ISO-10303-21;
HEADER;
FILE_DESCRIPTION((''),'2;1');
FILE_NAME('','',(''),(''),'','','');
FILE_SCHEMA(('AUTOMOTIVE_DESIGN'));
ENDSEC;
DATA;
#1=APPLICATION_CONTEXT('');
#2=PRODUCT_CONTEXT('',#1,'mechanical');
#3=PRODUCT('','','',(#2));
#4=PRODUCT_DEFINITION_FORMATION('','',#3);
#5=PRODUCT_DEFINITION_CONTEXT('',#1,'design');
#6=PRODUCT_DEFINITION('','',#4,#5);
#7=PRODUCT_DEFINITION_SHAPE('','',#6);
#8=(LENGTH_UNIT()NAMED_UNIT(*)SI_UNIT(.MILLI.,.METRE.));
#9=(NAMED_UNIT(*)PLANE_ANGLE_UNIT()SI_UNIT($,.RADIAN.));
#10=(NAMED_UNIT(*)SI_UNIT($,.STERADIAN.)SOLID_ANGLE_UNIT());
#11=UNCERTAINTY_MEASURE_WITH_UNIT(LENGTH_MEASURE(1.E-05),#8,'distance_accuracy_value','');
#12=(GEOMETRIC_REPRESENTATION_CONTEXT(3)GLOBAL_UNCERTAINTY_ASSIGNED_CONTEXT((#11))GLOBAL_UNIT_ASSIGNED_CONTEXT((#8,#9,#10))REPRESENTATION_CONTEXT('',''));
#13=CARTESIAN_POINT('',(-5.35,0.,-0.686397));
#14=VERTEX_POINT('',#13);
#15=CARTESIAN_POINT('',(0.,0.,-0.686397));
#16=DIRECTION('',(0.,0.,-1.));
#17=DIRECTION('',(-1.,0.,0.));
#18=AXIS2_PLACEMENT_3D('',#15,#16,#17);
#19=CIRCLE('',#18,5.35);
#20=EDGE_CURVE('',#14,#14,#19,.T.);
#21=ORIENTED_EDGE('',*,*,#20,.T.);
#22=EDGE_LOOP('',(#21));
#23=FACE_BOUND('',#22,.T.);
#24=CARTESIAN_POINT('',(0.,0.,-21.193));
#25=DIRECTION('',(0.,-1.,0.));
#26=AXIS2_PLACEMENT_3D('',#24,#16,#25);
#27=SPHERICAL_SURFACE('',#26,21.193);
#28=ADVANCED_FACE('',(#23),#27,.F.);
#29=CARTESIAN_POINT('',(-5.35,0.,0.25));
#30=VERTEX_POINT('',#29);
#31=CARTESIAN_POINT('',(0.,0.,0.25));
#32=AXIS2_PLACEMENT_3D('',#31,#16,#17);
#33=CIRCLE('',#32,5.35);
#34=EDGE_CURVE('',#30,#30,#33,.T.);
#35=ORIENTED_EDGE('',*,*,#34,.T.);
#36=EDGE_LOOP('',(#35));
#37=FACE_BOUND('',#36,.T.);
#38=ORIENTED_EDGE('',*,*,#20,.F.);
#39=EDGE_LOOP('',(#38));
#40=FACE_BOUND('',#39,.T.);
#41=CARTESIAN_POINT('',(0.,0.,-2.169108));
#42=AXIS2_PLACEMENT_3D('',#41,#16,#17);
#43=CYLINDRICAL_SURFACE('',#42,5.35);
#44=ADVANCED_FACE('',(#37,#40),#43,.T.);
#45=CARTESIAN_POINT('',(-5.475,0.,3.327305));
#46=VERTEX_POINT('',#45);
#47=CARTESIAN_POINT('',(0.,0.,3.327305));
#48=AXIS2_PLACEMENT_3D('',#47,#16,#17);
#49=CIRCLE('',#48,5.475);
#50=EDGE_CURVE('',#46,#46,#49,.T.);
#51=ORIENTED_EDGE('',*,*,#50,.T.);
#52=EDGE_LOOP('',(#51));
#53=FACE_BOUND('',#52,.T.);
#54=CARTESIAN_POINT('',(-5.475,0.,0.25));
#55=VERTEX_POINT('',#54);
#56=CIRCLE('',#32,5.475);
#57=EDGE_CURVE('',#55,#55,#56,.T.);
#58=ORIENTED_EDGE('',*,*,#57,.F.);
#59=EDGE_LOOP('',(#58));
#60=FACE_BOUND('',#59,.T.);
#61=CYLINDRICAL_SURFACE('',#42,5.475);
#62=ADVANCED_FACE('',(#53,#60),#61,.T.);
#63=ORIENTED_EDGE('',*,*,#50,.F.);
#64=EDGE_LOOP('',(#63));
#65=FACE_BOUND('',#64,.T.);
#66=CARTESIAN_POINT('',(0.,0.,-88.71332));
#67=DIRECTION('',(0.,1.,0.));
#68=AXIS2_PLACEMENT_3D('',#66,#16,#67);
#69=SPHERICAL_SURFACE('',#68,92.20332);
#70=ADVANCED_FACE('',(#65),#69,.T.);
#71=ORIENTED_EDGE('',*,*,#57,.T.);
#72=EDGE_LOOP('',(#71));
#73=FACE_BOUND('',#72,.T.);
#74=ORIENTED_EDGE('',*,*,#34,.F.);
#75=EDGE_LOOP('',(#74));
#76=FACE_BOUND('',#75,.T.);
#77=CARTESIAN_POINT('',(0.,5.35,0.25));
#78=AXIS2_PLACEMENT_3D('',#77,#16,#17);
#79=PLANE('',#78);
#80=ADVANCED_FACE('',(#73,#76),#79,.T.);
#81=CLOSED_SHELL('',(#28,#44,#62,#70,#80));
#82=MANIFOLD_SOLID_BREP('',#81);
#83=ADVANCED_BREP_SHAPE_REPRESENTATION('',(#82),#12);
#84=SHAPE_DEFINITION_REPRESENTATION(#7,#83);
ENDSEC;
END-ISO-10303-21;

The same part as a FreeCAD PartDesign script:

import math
import FreeCAD as App
import Part
import Sketcher
from FreeCAD import Vector
Q = App.Units.Quantity

doc = App.newDocument("Part")
body = doc.addObject("PartDesign::Body", "Body")

# Sketch on YZ plane
sketch1 = body.newObject("Sketcher::SketchObject", "Sketch")
sketch1.AttachmentSupport = (doc.getObject("YZ_Plane"), [""])
sketch1.MapMode = "FlatFace"
sketch1.addGeometry([
    Part.LineSegment(Vector(5.35, -0.686397, 0), Vector(5.35, 0.25, 0)),  # 0
    Part.LineSegment(Vector(5.35, 0.25, 0), Vector(5.475, 0.25, 0)),  # 1
    Part.LineSegment(Vector(5.475, 0.25, 0), Vector(5.475, 3.327305, 0)),  # 2
    Part.ArcOfCircle(Part.Circle(Vector(0, -88.713321, 0), Vector(0, 0, 1), 92.203321), math.radians(86.595795), math.radians(90)),  # 3
    Part.LineSegment(Vector(0, 3.49, 0), Vector(0, 0, 0)),  # 4
    Part.ArcOfCircle(Part.Circle(Vector(0, -21.193, 0), Vector(0, 0, 1), 21.193), math.radians(75.377945), math.radians(90)),  # 5
], False)
sketch1.addConstraint([
    Sketcher.Constraint("Coincident", 0, 2, 1, 1),
    Sketcher.Constraint("Coincident", 1, 2, 2, 1),
    Sketcher.Constraint("Coincident", 2, 2, 3, 1),
    Sketcher.Constraint("Coincident", 3, 2, 4, 1),
    Sketcher.Constraint("Coincident", 4, 2, 5, 2),
    Sketcher.Constraint("Coincident", 5, 1, 0, 1),
    Sketcher.Constraint("Vertical", 0),
    Sketcher.Constraint("Horizontal", 1),
    Sketcher.Constraint("Vertical", 2),
    Sketcher.Constraint("Vertical", 4),
    Sketcher.Constraint("Coincident", 4, 2, -1, 1),
    Sketcher.Constraint("PointOnObject", 3, 3, -2),
    Sketcher.Constraint("PointOnObject", 5, 3, -2),
    Sketcher.Constraint("Radius", 5, Q("21.193 mm")),
    Sketcher.Constraint("DistanceY", 4, 2, 4, 1, Q("3.49 mm")),
    Sketcher.Constraint("DistanceX", 1, 1, 1, 2, Q("0.125 mm")),
    Sketcher.Constraint("DistanceX", -1, 1, 0, 2, Q("5.35 mm")),
    Sketcher.Constraint("DistanceY", -1, 1, 0, 2, Q("0.25 mm")),
    Sketcher.Constraint("Radius", 3, Q("92.203321 mm")),
])
revolution = body.newObject("PartDesign::Revolution", "Revolution")
revolution.Profile = sketch1
revolution.ReferenceAxis = (sketch1, ["V_Axis"])
revolution.Angle = 360

doc.recompute()
